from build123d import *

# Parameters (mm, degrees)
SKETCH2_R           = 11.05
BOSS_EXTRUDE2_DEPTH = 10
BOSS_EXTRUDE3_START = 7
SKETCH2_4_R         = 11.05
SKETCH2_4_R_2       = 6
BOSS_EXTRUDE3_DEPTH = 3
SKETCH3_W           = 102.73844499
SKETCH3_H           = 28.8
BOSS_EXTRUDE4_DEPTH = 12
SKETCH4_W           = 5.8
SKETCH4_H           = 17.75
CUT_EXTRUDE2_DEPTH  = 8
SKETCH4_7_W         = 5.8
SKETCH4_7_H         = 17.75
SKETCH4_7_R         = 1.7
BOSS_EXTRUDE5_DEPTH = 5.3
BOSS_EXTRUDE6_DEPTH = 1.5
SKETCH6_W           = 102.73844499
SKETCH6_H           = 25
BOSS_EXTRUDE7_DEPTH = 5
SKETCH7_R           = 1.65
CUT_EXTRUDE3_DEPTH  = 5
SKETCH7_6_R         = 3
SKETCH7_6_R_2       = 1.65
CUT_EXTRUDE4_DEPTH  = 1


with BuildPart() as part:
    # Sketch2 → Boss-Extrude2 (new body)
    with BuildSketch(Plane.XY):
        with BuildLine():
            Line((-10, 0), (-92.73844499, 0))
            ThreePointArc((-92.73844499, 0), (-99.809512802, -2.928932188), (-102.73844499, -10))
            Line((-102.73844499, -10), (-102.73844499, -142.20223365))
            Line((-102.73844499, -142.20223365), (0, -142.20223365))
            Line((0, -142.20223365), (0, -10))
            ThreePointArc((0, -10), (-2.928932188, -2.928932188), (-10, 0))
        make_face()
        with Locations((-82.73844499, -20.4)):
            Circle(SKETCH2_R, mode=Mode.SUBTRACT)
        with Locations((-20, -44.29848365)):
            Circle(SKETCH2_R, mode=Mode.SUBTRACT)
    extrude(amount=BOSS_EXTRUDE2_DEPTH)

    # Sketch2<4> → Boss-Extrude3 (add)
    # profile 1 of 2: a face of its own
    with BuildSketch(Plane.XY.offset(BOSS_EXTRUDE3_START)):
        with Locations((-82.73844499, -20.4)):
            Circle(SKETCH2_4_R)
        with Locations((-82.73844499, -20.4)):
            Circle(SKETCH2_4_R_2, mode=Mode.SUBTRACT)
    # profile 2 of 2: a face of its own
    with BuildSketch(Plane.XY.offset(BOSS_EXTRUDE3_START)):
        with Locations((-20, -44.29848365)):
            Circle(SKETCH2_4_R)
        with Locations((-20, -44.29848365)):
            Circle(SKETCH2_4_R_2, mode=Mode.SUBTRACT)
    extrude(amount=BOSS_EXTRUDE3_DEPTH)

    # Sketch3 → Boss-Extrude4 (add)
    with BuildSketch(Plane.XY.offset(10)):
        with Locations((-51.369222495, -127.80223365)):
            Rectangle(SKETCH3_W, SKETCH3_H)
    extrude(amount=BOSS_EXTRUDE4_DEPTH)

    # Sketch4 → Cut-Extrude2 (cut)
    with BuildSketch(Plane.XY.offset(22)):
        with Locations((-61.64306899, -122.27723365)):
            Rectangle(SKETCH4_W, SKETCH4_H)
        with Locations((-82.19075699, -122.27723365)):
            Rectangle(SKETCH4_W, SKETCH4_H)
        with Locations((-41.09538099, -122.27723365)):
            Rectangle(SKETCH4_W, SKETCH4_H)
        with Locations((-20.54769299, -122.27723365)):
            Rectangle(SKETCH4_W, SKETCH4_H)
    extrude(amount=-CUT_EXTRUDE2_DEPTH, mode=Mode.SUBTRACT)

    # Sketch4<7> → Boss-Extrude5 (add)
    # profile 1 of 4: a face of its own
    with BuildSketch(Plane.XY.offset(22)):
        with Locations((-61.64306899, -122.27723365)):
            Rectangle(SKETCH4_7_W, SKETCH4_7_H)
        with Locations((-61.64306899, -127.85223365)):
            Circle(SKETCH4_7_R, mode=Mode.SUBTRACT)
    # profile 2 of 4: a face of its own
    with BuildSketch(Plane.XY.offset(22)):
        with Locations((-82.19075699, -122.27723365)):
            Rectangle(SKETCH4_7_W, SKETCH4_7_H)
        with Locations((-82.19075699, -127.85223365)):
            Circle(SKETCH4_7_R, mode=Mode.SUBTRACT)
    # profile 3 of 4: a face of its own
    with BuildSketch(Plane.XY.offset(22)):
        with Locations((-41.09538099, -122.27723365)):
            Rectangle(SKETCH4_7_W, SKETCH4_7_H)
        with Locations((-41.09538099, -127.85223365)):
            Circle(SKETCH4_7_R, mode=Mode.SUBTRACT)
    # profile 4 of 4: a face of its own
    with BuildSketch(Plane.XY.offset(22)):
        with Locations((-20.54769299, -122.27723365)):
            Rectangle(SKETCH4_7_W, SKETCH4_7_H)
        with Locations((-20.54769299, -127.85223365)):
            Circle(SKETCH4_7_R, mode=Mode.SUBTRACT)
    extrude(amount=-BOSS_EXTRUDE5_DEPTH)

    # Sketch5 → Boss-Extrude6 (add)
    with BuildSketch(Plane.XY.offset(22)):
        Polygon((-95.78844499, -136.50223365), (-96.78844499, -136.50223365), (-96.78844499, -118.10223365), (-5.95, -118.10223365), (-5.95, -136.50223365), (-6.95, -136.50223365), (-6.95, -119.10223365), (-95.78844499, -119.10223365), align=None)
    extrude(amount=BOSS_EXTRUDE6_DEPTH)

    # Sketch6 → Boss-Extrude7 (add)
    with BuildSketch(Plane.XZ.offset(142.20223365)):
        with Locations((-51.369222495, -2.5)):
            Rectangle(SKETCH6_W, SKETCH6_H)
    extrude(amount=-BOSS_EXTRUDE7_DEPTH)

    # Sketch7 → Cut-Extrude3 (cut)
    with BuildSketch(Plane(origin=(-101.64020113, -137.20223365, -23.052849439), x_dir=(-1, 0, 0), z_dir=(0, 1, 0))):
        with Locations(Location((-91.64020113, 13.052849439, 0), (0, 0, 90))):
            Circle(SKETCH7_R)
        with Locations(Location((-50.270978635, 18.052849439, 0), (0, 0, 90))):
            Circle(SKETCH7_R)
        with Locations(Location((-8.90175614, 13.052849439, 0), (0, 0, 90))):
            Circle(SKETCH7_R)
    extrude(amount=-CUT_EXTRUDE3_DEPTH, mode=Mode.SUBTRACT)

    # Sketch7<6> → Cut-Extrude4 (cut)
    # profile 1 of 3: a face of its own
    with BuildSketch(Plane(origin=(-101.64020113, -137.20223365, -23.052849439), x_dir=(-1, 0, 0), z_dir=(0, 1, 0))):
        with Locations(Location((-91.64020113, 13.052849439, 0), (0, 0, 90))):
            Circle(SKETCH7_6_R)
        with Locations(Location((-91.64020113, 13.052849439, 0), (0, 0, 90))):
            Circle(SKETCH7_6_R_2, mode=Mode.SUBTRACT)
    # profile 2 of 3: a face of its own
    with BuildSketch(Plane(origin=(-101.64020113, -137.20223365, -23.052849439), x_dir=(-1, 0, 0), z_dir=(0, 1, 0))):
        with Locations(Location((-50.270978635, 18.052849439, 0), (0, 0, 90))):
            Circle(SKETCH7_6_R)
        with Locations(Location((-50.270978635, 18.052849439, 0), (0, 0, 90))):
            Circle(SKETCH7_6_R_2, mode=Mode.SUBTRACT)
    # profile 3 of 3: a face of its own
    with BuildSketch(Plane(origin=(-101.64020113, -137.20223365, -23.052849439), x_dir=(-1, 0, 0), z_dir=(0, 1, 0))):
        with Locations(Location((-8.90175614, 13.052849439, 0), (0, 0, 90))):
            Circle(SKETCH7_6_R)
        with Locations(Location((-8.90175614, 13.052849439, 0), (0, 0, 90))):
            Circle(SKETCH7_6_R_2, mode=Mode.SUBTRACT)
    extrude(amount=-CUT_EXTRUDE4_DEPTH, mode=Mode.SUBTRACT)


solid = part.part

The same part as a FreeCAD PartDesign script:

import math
import FreeCAD as App
import Part
import Sketcher
from FreeCAD import Vector
Q = App.Units.Quantity

doc = App.newDocument("Part")
params = doc.addObject("Spreadsheet::Sheet", "Params")
for row, (alias, value) in enumerate([
    ("sketch1_radius", "10 mm"),
    ("sketch1_diameter", "22.1 mm"),
    ("pad1_length", "10 mm"),
    ("sketch2_diameter", "12 mm"),
    ("sketch2_diameter2", "22.1 mm"),
    ("pad2_length", "3 mm"),
    ("sketch3_height", "28.8 mm"),
    ("pad3_length", "12 mm"),
    ("sketch4_width", "5.8 mm"),
    ("sketch4_height", "17.75 mm"),
    ("pocket1_length", "8 mm"),
    ("sketch5_diameter", "3.4 mm"),
    ("sketch5_width", "5.8 mm"),
    ("sketch5_height", "17.75 mm"),
    ("pad4_length", "5.3 mm"),
    ("sketch6_width", "1 mm"),
    ("sketch6_height", "17.4 mm"),
    ("sketch6_height2", "18.4 mm"),
    ("pad5_length", "1.5 mm"),
    ("sketch7_height", "25 mm"),
    ("pad6_length", "5 mm"),
    ("sketch8_diameter", "3.3 mm"),
    ("pocket2_length", "5 mm"),
    ("sketch9_diameter", "6 mm"),
    ("sketch9_diameter2", "3.3 mm"),
    ("pocket3_length", "1 mm"),
], start=1):
    params.set(f"A{row}", alias)
    params.set(f"B{row}", "=" + value)
    params.setAlias(f"B{row}", alias)

body = doc.addObject("PartDesign::Body", "Body")

# Sketch on XY plane
sketch1 = body.newObject("Sketcher::SketchObject", "Sketch")
sketch1.AttachmentSupport = (doc.getObject("XY_Plane"), [""])
sketch1.MapMode = "FlatFace"
sketch1.addGeometry(Part.LineSegment(Vector(-10, 0, 0), Vector(-93, 0, 0)), False)
sketch1.addGeometry(Part.ArcOfCircle(Part.Circle(Vector(-93, -10, 0), Vector(0, 0, 1), 10), math.radians(90), math.radians(180)), False)
sketch1.addGeometry(Part.LineSegment(Vector(-103, -10, 0), Vector(-103, -142, 0)), False)
sketch1.addGeometry(Part.LineSegment(Vector(-103, -142, 0), Vector(0, -142, 0)), False)
sketch1.addGeometry(Part.LineSegment(Vector(0, -142, 0), Vector(0, -10, 0)), False)
sketch1.addGeometry(Part.ArcOfCircle(Part.Circle(Vector(-10, -10, 0), Vector(0, 0, 1), 10), math.radians(0), math.radians(90)), False)
sketch1.addGeometry(Part.Circle(Vector(-20, -44, 0), Vector(0, 0, 1), 11), False)
sketch1.addGeometry(Part.Circle(Vector(-83, -20, 0), Vector(0, 0, 1), 11), False)
sketch1.addConstraint(Sketcher.Constraint("Tangent", 0, 2, 1, 1))
sketch1.addConstraint(Sketcher.Constraint("Tangent", 1, 2, 2, 1))
sketch1.addConstraint(Sketcher.Constraint("Coincident", 2, 2, 3, 1))
sketch1.addConstraint(Sketcher.Constraint("Coincident", 3, 2, 4, 1))
sketch1.addConstraint(Sketcher.Constraint("Tangent", 4, 2, 5, 1))
sketch1.addConstraint(Sketcher.Constraint("Tangent", 5, 2, 0, 1))
sketch1.addConstraint(Sketcher.Constraint("Horizontal", 0))
sketch1.addConstraint(Sketcher.Constraint("Vertical", 2))
sketch1.addConstraint(Sketcher.Constraint("Horizontal", 3))
sketch1.addConstraint(Sketcher.Constraint("Vertical", 4))
sketch1.addConstraint(Sketcher.Constraint("Equal", 1, 5))
sketch1.addConstraint(Sketcher.Constraint("Equal", 6, 7))
sketch1.addConstraint(Sketcher.Constraint("PointOnObject", 0, 2, -1))
sketch1.addConstraint(Sketcher.Constraint("PointOnObject", 3, 2, -2))
sketch1.addConstraint(Sketcher.Constraint("Radius", 1, Q("10 mm")))
sketch1.addConstraint(Sketcher.Constraint("Diameter", 6, Q("22.1 mm")))
sketch1.addConstraint(Sketcher.Constraint("DistanceX", 6, 3, -1, 1, Q("20 mm")))
sketch1.addConstraint(Sketcher.Constraint("DistanceX", 1, 3, 7, 3, Q("10 mm")))
sketch1.addConstraint(Sketcher.Constraint("DistanceY", 7, 3, -1, 1, Q("20.4 mm")))
sketch1.addConstraint(Sketcher.Constraint("DistanceX", 0, 2, 0, 1, Q("82.738445 mm")))
sketch1.addConstraint(Sketcher.Constraint("DistanceY", 2, 2, 2, 1, Q("132.202234 mm")))
sketch1.addConstraint(Sketcher.Constraint("DistanceY", 2, 2, 6, 3, Q("97.90375 mm")))
sketch1.setExpression("Constraints[14]", "Params.sketch1_radius")
sketch1.setExpression("Constraints[15]", "Params.sketch1_diameter")
pad1 = body.newObject("PartDesign::Pad", "Pad")
pad1.Profile = sketch1
pad1.setExpression("Length", "Params.pad1_length")

# Sketch on XY plane
sketch2 = body.newObject("Sketcher::SketchObject", "Sketch001")
sketch2.AttachmentSupport = (doc.getObject("XY_Plane"), [""])
sketch2.MapMode = "FlatFace"
sketch2.AttachmentOffset = App.Placement(Vector(0, 0, 7), App.Rotation())
sketch2.addGeometry(Part.Circle(Vector(-83, -20, 0), Vector(0, 0, 1), 11), False)
sketch2.addGeometry(Part.Circle(Vector(-83, -20, 0), Vector(0, 0, 1), 6), False)
sketch2.addGeometry(Part.Circle(Vector(-20, -44, 0), Vector(0, 0, 1), 11), False)
sketch2.addGeometry(Part.Circle(Vector(-20, -44, 0), Vector(0, 0, 1), 6), False)
sketch2.addConstraint(Sketcher.Constraint("Coincident", 1, 3, 0, 3))
sketch2.addConstraint(Sketcher.Constraint("Coincident", 3, 3, 2, 3))
sketch2.addConstraint(Sketcher.Constraint("Equal", 0, 2))
sketch2.addConstraint(Sketcher.Constraint("Equal", 1, 3))
sketch2.addConstraint(Sketcher.Constraint("Diameter", 1, Q("12 mm")))
sketch2.addConstraint(Sketcher.Constraint("Diameter", 0, Q("22.1 mm")))
sketch2.addConstraint(Sketcher.Constraint("DistanceX", 2, 3, -1, 1, Q("20 mm")))
sketch2.addConstraint(Sketcher.Constraint("DistanceY", 0, 3, -1, 1, Q("20.4 mm")))
sketch2.addConstraint(Sketcher.Constraint("DistanceX", 0, 3, -1, 1, Q("82.738445 mm")))
sketch2.addConstraint(Sketcher.Constraint("DistanceY", 2, 3, -1, 1, Q("44.298484 mm")))
sketch2.setExpression("Constraints[4]", "Params.sketch2_diameter")
sketch2.setExpression("Constraints[5]", "Params.sketch2_diameter2")
pad2 = body.newObject("PartDesign::Pad", "Pad001")
pad2.Profile = sketch2
pad2.setExpression("Length", "Params.pad2_length")

# Sketch on XY plane
sketch3 = body.newObject("Sketcher::SketchObject", "Sketch002")
sketch3.AttachmentSupport = (doc.getObject("XY_Plane"), [""])
sketch3.MapMode = "FlatFace"
sketch3.AttachmentOffset = App.Placement(Vector(0, 0, 10), App.Rotation())
sketch3.addGeometry(Part.LineSegment(Vector(-103, -113, 0), Vector(-103, -142, 0)), False)
sketch3.addGeometry(Part.LineSegment(Vector(-103, -142, 0), Vector(0, -142, 0)), False)
sketch3.addGeometry(Part.LineSegment(Vector(0, -142, 0), Vector(0, -113, 0)), False)
sketch3.addGeometry(Part.LineSegment(Vector(0, -113, 0), Vector(-103, -113, 0)), False)
sketch3.addConstraint(Sketcher.Constraint("Coincident", 0, 2, 1, 1))
sketch3.addConstraint(Sketcher.Constraint("Coincident", 1, 2, 2, 1))
sketch3.addConstraint(Sketcher.Constraint("Coincident", 2, 2, 3, 1))
sketch3.addConstraint(Sketcher.Constraint("Coincident", 3, 2, 0, 1))
sketch3.addConstraint(Sketcher.Constraint("Vertical", 0))
sketch3.addConstraint(Sketcher.Constraint("Horizontal", 1))
sketch3.addConstraint(Sketcher.Constraint("Vertical", 2))
sketch3.addConstraint(Sketcher.Constraint("Horizontal", 3))
sketch3.addConstraint(Sketcher.Constraint("PointOnObject", 1, 2, -2))
sketch3.addConstraint(Sketcher.Constraint("DistanceY", 0, 2, 0, 1, Q("28.8 mm")))
sketch3.addConstraint(Sketcher.Constraint("DistanceX", 1, 1, 1, 2, Q("102.738445 mm")))
sketch3.addConstraint(Sketcher.Constraint("DistanceY", 0, 2, -1, 1, Q("142.202234 mm")))
sketch3.setExpression("Constraints[9]", "Params.sketch3_height")
pad3 = body.newObject("PartDesign::Pad", "Pad002")
pad3.Profile = sketch3
pad3.setExpression("Length", "Params.pad3_length")

# Sketch on XY plane
sketch4 = body.newObject("Sketcher::SketchObject", "Sketch003")
sketch4.AttachmentSupport = (doc.getObject("XY_Plane"), [""])
sketch4.MapMode = "FlatFace"
sketch4.AttachmentOffset = App.Placement(Vector(0, 0, 22), App.Rotation())
sketch4.addGeometry(Part.LineSegment(Vector(-65, -113, 0), Vector(-65, -131, 0)), False)
sketch4.addGeometry(Part.LineSegment(Vector(-65, -131, 0), Vector(-59, -131, 0)), False)
sketch4.addGeometry(Part.LineSegment(Vector(-59, -131, 0), Vector(-59, -113, 0)), False)
sketch4.addGeometry(Part.LineSegment(Vector(-59, -113, 0), Vector(-65, -113, 0)), False)
sketch4.addGeometry(Part.LineSegment(Vector(-85, -113, 0), Vector(-85, -131, 0)), False)
sketch4.addGeometry(Part.LineSegment(Vector(-85, -131, 0), Vector(-79, -131, 0)), False)
sketch4.addGeometry(Part.LineSegment(Vector(-79, -131, 0), Vector(-79, -113, 0)), False)
sketch4.addGeometry(Part.LineSegment(Vector(-79, -113, 0), Vector(-85, -113, 0)), False)
sketch4.addGeometry(Part.LineSegment(Vector(-44, -113, 0), Vector(-44, -131, 0)), False)
sketch4.addGeometry(Part.LineSegment(Vector(-44, -131, 0), Vector(-38, -131, 0)), False)
sketch4.addGeometry(Part.LineSegment(Vector(-38, -131, 0), Vector(-38, -113, 0)), False)
sketch4.addGeometry(Part.LineSegment(Vector(-38, -113, 0), Vector(-44, -113, 0)), False)
sketch4.addGeometry(Part.LineSegment(Vector(-23, -113, 0), Vector(-23, -131, 0)), False)
sketch4.addGeometry(Part.LineSegment(Vector(-23, -131, 0), Vector(-18, -131, 0)), False)
sketch4.addGeometry(Part.LineSegment(Vector(-18, -131, 0), Vector(-18, -113, 0)), False)
sketch4.addGeometry(Part.LineSegment(Vector(-18, -113, 0), Vector(-23, -113, 0)), False)
sketch4.addConstraint(Sketcher.Constraint("Coincident", 0, 2, 1, 1))
sketch4.addConstraint(Sketcher.Constraint("Coincident", 1, 2, 2, 1))
sketch4.addConstraint(Sketcher.Constraint("Coincident", 2, 2, 3, 1))
sketch4.addConstraint(Sketcher.Constraint("Coincident", 3, 2, 0, 1))
sketch4.addConstraint(Sketcher.Constraint("Coincident", 4, 2, 5, 1))
sketch4.addConstraint(Sketcher.Constraint("Coincident", 5, 2, 6, 1))
sketch4.addConstraint(Sketcher.Constraint("Coincident", 6, 2, 7, 1))
sketch4.addConstraint(Sketcher.Constraint("Coincident", 7, 2, 4, 1))
sketch4.addConstraint(Sketcher.Constraint("Coincident", 8, 2, 9, 1))
sketch4.addConstraint(Sketcher.Constraint("Coincident", 9, 2, 10, 1))
sketch4.addConstraint(Sketcher.Constraint("Coincident", 10, 2, 11, 1))
sketch4.addConstraint(Sketcher.Constraint("Coincident", 11, 2, 8, 1))
sketch4.addConstraint(Sketcher.Constraint("Coincident", 12, 2, 13, 1))
sketch4.addConstraint(Sketcher.Constraint("Coincident", 13, 2, 14, 1))
sketch4.addConstraint(Sketcher.Constraint("Coincident", 14, 2, 15, 1))
sketch4.addConstraint(Sketcher.Constraint("Coincident", 15, 2, 12, 1))
sketch4.addConstraint(Sketcher.Constraint("Vertical", 0))
sketch4.addConstraint(Sketcher.Constraint("Horizontal", 1))
sketch4.addConstraint(Sketcher.Constraint("Vertical", 2))
sketch4.addConstraint(Sketcher.Constraint("Horizontal", 3))
sketch4.addConstraint(Sketcher.Constraint("Vertical", 4))
sketch4.addConstraint(Sketcher.Constraint("Horizontal", 5))
sketch4.addConstraint(Sketcher.Constraint("Vertical", 6))
sketch4.addConstraint(Sketcher.Constraint("Horizontal", 7))
sketch4.addConstraint(Sketcher.Constraint("Vertical", 8))
sketch4.addConstraint(Sketcher.Constraint("Horizontal", 9))
sketch4.addConstraint(Sketcher.Constraint("Vertical", 10))
sketch4.addConstraint(Sketcher.Constraint("Horizontal", 11))
sketch4.addConstraint(Sketcher.Constraint("Vertical", 12))
sketch4.addConstraint(Sketcher.Constraint("Horizontal", 13))
sketch4.addConstraint(Sketcher.Constraint("Vertical", 14))
sketch4.addConstraint(Sketcher.Constraint("Horizontal", 15))
sketch4.addConstraint(Sketcher.Constraint("Horizontal", 1, 2, 4, 2))
sketch4.addConstraint(Sketcher.Constraint("Horizontal", 3, 2, 6, 2))
sketch4.addConstraint(Sketcher.Constraint("Horizontal", 5, 2, 8, 2))
sketch4.addConstraint(Sketcher.Constraint("Horizontal", 7, 2, 10, 2))
sketch4.addConstraint(Sketcher.Constraint("Horizontal", 9, 2, 12, 2))
sketch4.addConstraint(Sketcher.Constraint("Horizontal", 11, 2, 14, 2))
sketch4.addConstraint(Sketcher.Constraint("Equal", 3, 5))
sketch4.addConstraint(Sketcher.Constraint("Equal", 7, 9))
sketch4.addConstraint(Sketcher.Constraint("Equal", 11, 13))
sketch4.addConstraint(Sketcher.Constraint("DistanceX", 1, 1, 1, 2, Q("5.8 mm")))
sketch4.addConstraint(Sketcher.Constraint("DistanceY", 0, 2, 0, 1, Q("17.75 mm")))
sketch4.addConstraint(Sketcher.Constraint("DistanceX", 0, 2, -1, 1, Q("64.543069 mm")))
sketch4.addConstraint(Sketcher.Constraint("DistanceX", 8, 2, -1, 1, Q("43.995381 mm")))
sketch4.addConstraint(Sketcher.Constraint("DistanceX", 4, 2, 0, 2, Q("20.547688 mm")))
sketch4.addConstraint(Sketcher.Constraint("DistanceX", 8, 2, 12, 2, Q("20.547688 mm")))
sketch4.addConstraint(Sketcher.Constraint("DistanceY", 0, 2, -1, 1, Q("131.152234 mm")))
sketch4.setExpression("Constraints[41]", "Params.sketch4_width")
sketch4.setExpression("Constraints[42]", "Params.sketch4_height")
pocket1 = body.newObject("PartDesign::Pocket", "Pocket")
pocket1.Profile = sketch4
pocket1.setExpression("Length", "Params.pocket1_length")

# Sketch on XY plane
sketch5 = body.newObject("Sketcher::SketchObject", "Sketch004")
sketch5.AttachmentSupport = (doc.getObject("XY_Plane"), [""])
sketch5.MapMode = "FlatFace"
sketch5.AttachmentOffset = App.Placement(Vector(0, 0, 22), App.Rotation())
sketch5.addGeometry(Part.LineSegment(Vector(-64.5, -113.4, 0), Vector(-64.5, -131.2, 0)), False)
sketch5.addGeometry(Part.LineSegment(Vector(-64.5, -131.2, 0), Vector(-58.7, -131.2, 0)), False)
sketch5.addGeometry(Part.LineSegment(Vector(-58.7, -131.2, 0), Vector(-58.7, -113.4, 0)), False)
sketch5.addGeometry(Part.LineSegment(Vector(-58.7, -113.4, 0), Vector(-64.5, -113.4, 0)), False)
sketch5.addGeometry(Part.Circle(Vector(-61.6, -127.9, 0), Vector(0, 0, 1), 1.7), False)
sketch5.addGeometry(Part.LineSegment(Vector(-85.1, -113.4, 0), Vector(-85.1, -131.2, 0)), False)
sketch5.addGeometry(Part.LineSegment(Vector(-85.1, -131.2, 0), Vector(-79.3, -131.2, 0)), False)
sketch5.addGeometry(Part.LineSegment(Vector(-79.3, -131.2, 0), Vector(-79.3, -113.4, 0)), False)
sketch5.addGeometry(Part.LineSegment(Vector(-79.3, -113.4, 0), Vector(-85.1, -113.4, 0)), False)
sketch5.addGeometry(Part.Circle(Vector(-82.2, -127.9, 0), Vector(0, 0, 1), 1.7), False)
sketch5.addGeometry(Part.LineSegment(Vector(-44, -113.4, 0), Vector(-44, -131.2, 0)), False)
sketch5.addGeometry(Part.LineSegment(Vector(-44, -131.2, 0), Vector(-38.2, -131.2, 0)), False)
sketch5.addGeometry(Part.LineSegment(Vector(-38.2, -131.2, 0), Vector(-38.2, -113.4, 0)), False)
sketch5.addGeometry(Part.LineSegment(Vector(-38.2, -113.4, 0), Vector(-44, -113.4, 0)), False)
sketch5.addGeometry(Part.Circle(Vector(-41.1, -127.9, 0), Vector(0, 0, 1), 1.7), False)
sketch5.addGeometry(Part.LineSegment(Vector(-23.4, -113.4, 0), Vector(-23.4, -131.2, 0)), False)
sketch5.addGeometry(Part.LineSegment(Vector(-23.4, -131.2, 0), Vector(-17.6, -131.2, 0)), False)
sketch5.addGeometry(Part.LineSegment(Vector(-17.6, -131.2, 0), Vector(-17.6, -113.4, 0)), False)
sketch5.addGeometry(Part.LineSegment(Vector(-17.6, -113.4, 0), Vector(-23.4, -113.4, 0)), False)
sketch5.addGeometry(Part.Circle(Vector(-20.5, -127.9, 0), Vector(0, 0, 1), 1.7), False)
sketch5.addConstraint(Sketcher.Constraint("Coincident", 0, 2, 1, 1))
sketch5.addConstraint(Sketcher.Constraint("Coincident", 1, 2, 2, 1))
sketch5.addConstraint(Sketcher.Constraint("Coincident", 2, 2, 3, 1))
sketch5.addConstraint(Sketcher.Constraint("Coincident", 3, 2, 0, 1))
sketch5.addConstraint(Sketcher.Constraint("Coincident", 5, 2, 6, 1))
sketch5.addConstraint(Sketcher.Constraint("Coincident", 6, 2, 7, 1))
sketch5.addConstraint(Sketcher.Constraint("Coincident", 7, 2, 8, 1))
sketch5.addConstraint(Sketcher.Constraint("Coincident", 8, 2, 5, 1))
sketch5.addConstraint(Sketcher.Constraint("Coincident", 10, 2, 11, 1))
sketch5.addConstraint(Sketcher.Constraint("Coincident", 11, 2, 12, 1))
sketch5.addConstraint(Sketcher.Constraint("Coincident", 12, 2, 13, 1))
sketch5.addConstraint(Sketcher.Constraint("Coincident", 13, 2, 10, 1))
sketch5.addConstraint(Sketcher.Constraint("Coincident", 15, 2, 16, 1))
sketch5.addConstraint(Sketcher.Constraint("Coincident", 16, 2, 17, 1))
sketch5.addConstraint(Sketcher.Constraint("Coincident", 17, 2, 18, 1))
sketch5.addConstraint(Sketcher.Constraint("Coincident", 18, 2, 15, 1))
sketch5.addConstraint(Sketcher.Constraint("Vertical", 0))
sketch5.addConstraint(Sketcher.Constraint("Horizontal", 1))
sketch5.addConstraint(Sketcher.Constraint("Vertical", 2))
sketch5.addConstraint(Sketcher.Constraint("Horizontal", 3))
sketch5.addConstraint(Sketcher.Constraint("Vertical", 5))
sketch5.addConstraint(Sketcher.Constraint("Horizontal", 6))
sketch5.addConstraint(Sketcher.Constraint("Vertical", 7))
sketch5.addConstraint(Sketcher.Constraint("Horizontal", 8))
sketch5.addConstraint(Sketcher.Constraint("Vertical", 10))
sketch5.addConstraint(Sketcher.Constraint("Horizontal", 11))
sketch5.addConstraint(Sketcher.Constraint("Vertical", 12))
sketch5.addConstraint(Sketcher.Constraint("Horizontal", 13))
sketch5.addConstraint(Sketcher.Constraint("Vertical", 15))
sketch5.addConstraint(Sketcher.Constraint("Horizontal", 16))
sketch5.addConstraint(Sketcher.Constraint("Vertical", 17))
sketch5.addConstraint(Sketcher.Constraint("Horizontal", 18))
sketch5.addConstraint(Sketcher.Constraint("Equal", 4, 9))
sketch5.addConstraint(Sketcher.Constraint("Equal", 9, 14))
sketch5.addConstraint(Sketcher.Constraint("Equal", 14, 19))
sketch5.addConstraint(Sketcher.Constraint("Horizontal", 4, 3, 9, 3))
sketch5.addConstraint(Sketcher.Constraint("Horizontal", 9, 3, 14, 3))
sketch5.addConstraint(Sketcher.Constraint("Horizontal", 14, 3, 19, 3))
sketch5.addConstraint(Sketcher.Constraint("Horizontal", 1, 2, 5, 2))
sketch5.addConstraint(Sketcher.Constraint("Horizontal", 3, 2, 7, 2))
sketch5.addConstraint(Sketcher.Constraint("Horizontal", 6, 2, 10, 2))
sketch5.addConstraint(Sketcher.Constraint("Horizontal", 8, 2, 12, 2))
sketch5.addConstraint(Sketcher.Constraint("Horizontal", 11, 2, 15, 2))
sketch5.addConstraint(Sketcher.Constraint("Horizontal", 13, 2, 17, 2))
sketch5.addConstraint(Sketcher.Constraint("Equal", 3, 6))
sketch5.addConstraint(Sketcher.Constraint("Equal", 8, 11))
sketch5.addConstraint(Sketcher.Constraint("Equal", 13, 16))
sketch5.addConstraint(Sketcher.Constraint("Diameter", 4, Q("3.4 mm")))
sketch5.addConstraint(Sketcher.Constraint("DistanceX", 1, 1, 1, 2, Q("5.8 mm")))
sketch5.addConstraint(Sketcher.Constraint("DistanceY", 0, 2, 0, 1, Q("17.75 mm")))
sketch5.addConstraint(Sketcher.Constraint("DistanceX", 0, 2, 4, 3, Q("2.9 mm")))
sketch5.addConstraint(Sketcher.Constraint("DistanceY", 0, 2, 4, 3, Q("3.3 mm")))
sketch5.addConstraint(Sketcher.Constraint("DistanceX", 5, 2, 9, 3, Q("2.9 mm")))
sketch5.addConstraint(Sketcher.Constraint("DistanceX", 10, 2, 14, 3, Q("2.9 mm")))
sketch5.addConstraint(Sketcher.Constraint("DistanceX", 15, 2, 19, 3, Q("2.9 mm")))
sketch5.addConstraint(Sketcher.Constraint("DistanceX", 4, 3, -1, 1, Q("61.643069 mm")))
sketch5.addConstraint(Sketcher.Constraint("DistanceX", 14, 3, -1, 1, Q("41.095381 mm")))
sketch5.addConstraint(Sketcher.Constraint("DistanceX", 14, 3, 19, 3, Q("20.547688 mm")))
sketch5.addConstraint(Sketcher.Constraint("DistanceX", 9, 3, 0, 2, Q("17.647688 mm")))
sketch5.addConstraint(Sketcher.Constraint("DistanceY", 4, 3, -1, 1, Q("127.852234 mm")))
sketch5.setExpression("Constraints[47]", "Params.sketch5_diameter")
sketch5.setExpression("Constraints[48]", "Params.sketch5_width")
sketch5.setExpression("Constraints[49]", "Params.sketch5_height")
pad4 = body.newObject("PartDesign::Pad", "Pad003")
pad4.Profile = sketch5
pad4.setExpression("Length", "Params.pad4_length")
pad4.Reversed = True

# Sketch on XY plane
sketch6 = body.newObject("Sketcher::SketchObject", "Sketch005")
sketch6.AttachmentSupport = (doc.getObject("XY_Plane"), [""])
sketch6.MapMode = "FlatFace"
sketch6.AttachmentOffset = App.Placement(Vector(0, 0, 22), App.Rotation())
sketch6.addGeometry(Part.LineSegment(Vector(-96.8, -136.5, 0), Vector(-95.8, -136.5, 0)), False)
sketch6.addGeometry(Part.LineSegment(Vector(-95.8, -136.5, 0), Vector(-95.8, -119.1, 0)), False)
sketch6.addGeometry(Part.LineSegment(Vector(-95.8, -119.1, 0), Vector(-7, -119.1, 0)), False)
sketch6.addGeometry(Part.LineSegment(Vector(-7, -119.1, 0), Vector(-7, -136.5, 0)), False)
sketch6.addGeometry(Part.LineSegment(Vector(-7, -136.5, 0), Vector(-6, -136.5, 0)), False)
sketch6.addGeometry(Part.LineSegment(Vector(-6, -136.5, 0), Vector(-6, -118.1, 0)), False)
sketch6.addGeometry(Part.LineSegment(Vector(-6, -118.1, 0), Vector(-96.8, -118.1, 0)), False)
sketch6.addGeometry(Part.LineSegment(Vector(-96.8, -118.1, 0), Vector(-96.8, -136.5, 0)), False)
sketch6.addConstraint(Sketcher.Constraint("Coincident", 0, 2, 1, 1))
sketch6.addConstraint(Sketcher.Constraint("Coincident", 1, 2, 2, 1))
sketch6.addConstraint(Sketcher.Constraint("Coincident", 2, 2, 3, 1))
sketch6.addConstraint(Sketcher.Constraint("Coincident", 3, 2, 4, 1))
sketch6.addConstraint(Sketcher.Constraint("Coincident", 4, 2, 5, 1))
sketch6.addConstraint(Sketcher.Constraint("Coincident", 5, 2, 6, 1))
sketch6.addConstraint(Sketcher.Constraint("Coincident", 6, 2, 7, 1))
sketch6.addConstraint(Sketcher.Constraint("Coincident", 7, 2, 0, 1))
sketch6.addConstraint(Sketcher.Constraint("Horizontal", 0))
sketch6.addConstraint(Sketcher.Constraint("Vertical", 1))
sketch6.addConstraint(Sketcher.Constraint("Horizontal", 2))
sketch6.addConstraint(Sketcher.Constraint("Vertical", 3))
sketch6.addConstraint(Sketcher.Constraint("Horizontal", 4))
sketch6.addConstraint(Sketcher.Constraint("Vertical", 5))
sketch6.addConstraint(Sketcher.Constraint("Horizontal", 6))
sketch6.addConstraint(Sketcher.Constraint("Vertical", 7))
sketch6.addConstraint(Sketcher.Constraint("Horizontal", 0, 2, 3, 2))
sketch6.addConstraint(Sketcher.Constraint("Equal", 0, 4))
sketch6.addConstraint(Sketcher.Constraint("DistanceX", 0, 1, 0, 2, Q("1 mm")))
sketch6.addConstraint(Sketcher.Constraint("DistanceY", 1, 1, 1, 2, Q("17.4 mm")))
sketch6.addConstraint(Sketcher.Constraint("DistanceY", 5, 1, 5, 2, Q("18.4 mm")))
sketch6.addConstraint(Sketcher.Constraint("DistanceX", 2, 2, -1, 1, Q("6.95 mm")))
sketch6.addConstraint(Sketcher.Constraint("DistanceX", 2, 1, 2, 2, Q("88.838445 mm")))
sketch6.addConstraint(Sketcher.Constraint("DistanceY", 0, 2, -1, 1, Q("136.502234 mm")))
sketch6.setExpression("Constraints[18]", "Params.sketch6_width")
sketch6.setExpression("Constraints[19]", "Params.sketch6_height")
sketch6.setExpression("Constraints[20]", "Params.sketch6_height2")
pad5 = body.newObject("PartDesign::Pad", "Pad004")
pad5.Profile = sketch6
pad5.setExpression("Length", "Params.pad5_length")

# Sketch on XZ plane
sketch7 = body.newObject("Sketcher::SketchObject", "Sketch006")
sketch7.AttachmentSupport = (doc.getObject("XZ_Plane"), [""])
sketch7.MapMode = "FlatFace"
sketch7.AttachmentOffset = App.Placement(Vector(0, 0, 142.202234), App.Rotation())
sketch7.addGeometry(Part.LineSegment(Vector(-103, 10, 0), Vector(-103, -15, 0)), False)
sketch7.addGeometry(Part.LineSegment(Vector(-103, -15, 0), Vector(0, -15, 0)), False)
sketch7.addGeometry(Part.LineSegment(Vector(0, -15, 0), Vector(0, 10, 0)), False)
sketch7.addGeometry(Part.LineSegment(Vector(0, 10, 0), Vector(-103, 10, 0)), False)
sketch7.addConstraint(Sketcher.Constraint("Coincident", 0, 2, 1, 1))
sketch7.addConstraint(Sketcher.Constraint("Coincident", 1, 2, 2, 1))
sketch7.addConstraint(Sketcher.Constraint("Coincident", 2, 2, 3, 1))
sketch7.addConstraint(Sketcher.Constraint("Coincident", 3, 2, 0, 1))
sketch7.addConstraint(Sketcher.Constraint("Vertical", 0))
sketch7.addConstraint(Sketcher.Constraint("Horizontal", 1))
sketch7.addConstraint(Sketcher.Constraint("Vertical", 2))
sketch7.addConstraint(Sketcher.Constraint("Horizontal", 3))
sketch7.addConstraint(Sketcher.Constraint("PointOnObject", 1, 2, -2))
sketch7.addConstraint(Sketcher.Constraint("DistanceY", 0, 2, 0, 1, Q("25 mm")))
sketch7.addConstraint(Sketcher.Constraint("DistanceY", 0, 2, -1, 1, Q("15 mm")))
sketch7.addConstraint(Sketcher.Constraint("DistanceX", 1, 1, 1, 2, Q("102.738445 mm")))
sketch7.setExpression("Constraints[9]", "Params.sketch7_height")
pad6 = body.newObject("PartDesign::Pad", "Pad005")
pad6.Profile = sketch7
pad6.setExpression("Length", "Params.pad6_length")
pad6.Reversed = True

# Sketch on XZ plane
sketch8 = body.newObject("Sketcher::SketchObject", "Sketch007")
sketch8.AttachmentSupport = (doc.getObject("XZ_Plane"), [""])
sketch8.MapMode = "FlatFace"
sketch8.AttachmentOffset = App.Placement(Vector(0, 0, 137.202234), App.Rotation())
sketch8.addGeometry(Part.Circle(Vector(-10, -10, 0), Vector(0, 0, 1), 1.6), False)
sketch8.addGeometry(Part.Circle(Vector(-51.4, -5, 0), Vector(0, 0, 1), 1.6), False)
sketch8.addGeometry(Part.Circle(Vector(-92.7, -10, 0), Vector(0, 0, 1), 1.6), False)
sketch8.addConstraint(Sketcher.Constraint("Equal", 0, 1))
sketch8.addConstraint(Sketcher.Constraint("Equal", 1, 2))
sketch8.addConstraint(Sketcher.Constraint("Horizontal", 0, 3, 2, 3))
sketch8.addConstraint(Sketcher.Constraint("Diameter", 0, Q("3.3 mm")))
sketch8.addConstraint(Sketcher.Constraint("DistanceX", 0, 3, -1, 1, Q("10 mm")))
sketch8.addConstraint(Sketcher.Constraint("DistanceY", 0, 3, -1, 1, Q("10 mm")))
sketch8.addConstraint(Sketcher.Constraint("DistanceY", 1, 3, -1, 1, Q("5 mm")))
sketch8.addConstraint(Sketcher.Constraint("DistanceX", 1, 3, -1, 1, Q("51.369222 mm")))
sketch8.addConstraint(Sketcher.Constraint("DistanceX", 2, 3, -1, 1, Q("92.738445 mm")))
sketch8.setExpression("Constraints[3]", "Params.sketch8_diameter")
pocket2 = body.newObject("PartDesign::Pocket", "Pocket001")
pocket2.Profile = sketch8
pocket2.setExpression("Length", "Params.pocket2_length")
pocket2.Reversed = True

# Sketch on XZ plane
sketch9 = body.newObject("Sketcher::SketchObject", "Sketch008")
sketch9.AttachmentSupport = (doc.getObject("XZ_Plane"), [""])
sketch9.MapMode = "FlatFace"
sketch9.AttachmentOffset = App.Placement(Vector(0, 0, 137.202234), App.Rotation())
sketch9.addGeometry(Part.Circle(Vector(-10, -10, 0), Vector(0, 0, 1), 3), False)
sketch9.addGeometry(Part.Circle(Vector(-10, -10, 0), Vector(0, 0, 1), 1.6), False)
sketch9.addGeometry(Part.Circle(Vector(-51.4, -5, 0), Vector(0, 0, 1), 3), False)
sketch9.addGeometry(Part.Circle(Vector(-51.4, -5, 0), Vector(0, 0, 1), 1.6), False)
sketch9.addGeometry(Part.Circle(Vector(-92.7, -10, 0), Vector(0, 0, 1), 3), False)
sketch9.addGeometry(Part.Circle(Vector(-92.7, -10, 0), Vector(0, 0, 1), 1.6), False)
sketch9.addConstraint(Sketcher.Constraint("Coincident", 1, 3, 0, 3))
sketch9.addConstraint(Sketcher.Constraint("Coincident", 3, 3, 2, 3))
sketch9.addConstraint(Sketcher.Constraint("Coincident", 5, 3, 4, 3))
sketch9.addConstraint(Sketcher.Constraint("Equal", 0, 2))
sketch9.addConstraint(Sketcher.Constraint("Equal", 1, 3))
sketch9.addConstraint(Sketcher.Constraint("Equal", 2, 4))
sketch9.addConstraint(Sketcher.Constraint("Equal", 3, 5))
sketch9.addConstraint(Sketcher.Constraint("Horizontal", 1, 3, 4, 3))
sketch9.addConstraint(Sketcher.Constraint("Diameter", 0, Q("6 mm")))
sketch9.addConstraint(Sketcher.Constraint("Diameter", 1, Q("3.3 mm")))
sketch9.addConstraint(Sketcher.Constraint("DistanceX", 0, 3, -1, 1, Q("10 mm")))
sketch9.addConstraint(Sketcher.Constraint("DistanceY", 0, 3, -1, 1, Q("10 mm")))
sketch9.addConstraint(Sketcher.Constraint("DistanceY", 2, 3, -1, 1, Q("5 mm")))
sketch9.addConstraint(Sketcher.Constraint("DistanceX", 2, 3, -1, 1, Q("51.369222 mm")))
sketch9.addConstraint(Sketcher.Constraint("DistanceX", 4, 3, -1, 1, Q("92.738445 mm")))
sketch9.setExpression("Constraints[8]", "Params.sketch9_diameter")
sketch9.setExpression("Constraints[9]", "Params.sketch9_diameter2")
pocket3 = body.newObject("PartDesign::Pocket", "Pocket002")
pocket3.Profile = sketch9
pocket3.setExpression("Length", "Params.pocket3_length")
pocket3.Reversed = True

doc.recompute()
